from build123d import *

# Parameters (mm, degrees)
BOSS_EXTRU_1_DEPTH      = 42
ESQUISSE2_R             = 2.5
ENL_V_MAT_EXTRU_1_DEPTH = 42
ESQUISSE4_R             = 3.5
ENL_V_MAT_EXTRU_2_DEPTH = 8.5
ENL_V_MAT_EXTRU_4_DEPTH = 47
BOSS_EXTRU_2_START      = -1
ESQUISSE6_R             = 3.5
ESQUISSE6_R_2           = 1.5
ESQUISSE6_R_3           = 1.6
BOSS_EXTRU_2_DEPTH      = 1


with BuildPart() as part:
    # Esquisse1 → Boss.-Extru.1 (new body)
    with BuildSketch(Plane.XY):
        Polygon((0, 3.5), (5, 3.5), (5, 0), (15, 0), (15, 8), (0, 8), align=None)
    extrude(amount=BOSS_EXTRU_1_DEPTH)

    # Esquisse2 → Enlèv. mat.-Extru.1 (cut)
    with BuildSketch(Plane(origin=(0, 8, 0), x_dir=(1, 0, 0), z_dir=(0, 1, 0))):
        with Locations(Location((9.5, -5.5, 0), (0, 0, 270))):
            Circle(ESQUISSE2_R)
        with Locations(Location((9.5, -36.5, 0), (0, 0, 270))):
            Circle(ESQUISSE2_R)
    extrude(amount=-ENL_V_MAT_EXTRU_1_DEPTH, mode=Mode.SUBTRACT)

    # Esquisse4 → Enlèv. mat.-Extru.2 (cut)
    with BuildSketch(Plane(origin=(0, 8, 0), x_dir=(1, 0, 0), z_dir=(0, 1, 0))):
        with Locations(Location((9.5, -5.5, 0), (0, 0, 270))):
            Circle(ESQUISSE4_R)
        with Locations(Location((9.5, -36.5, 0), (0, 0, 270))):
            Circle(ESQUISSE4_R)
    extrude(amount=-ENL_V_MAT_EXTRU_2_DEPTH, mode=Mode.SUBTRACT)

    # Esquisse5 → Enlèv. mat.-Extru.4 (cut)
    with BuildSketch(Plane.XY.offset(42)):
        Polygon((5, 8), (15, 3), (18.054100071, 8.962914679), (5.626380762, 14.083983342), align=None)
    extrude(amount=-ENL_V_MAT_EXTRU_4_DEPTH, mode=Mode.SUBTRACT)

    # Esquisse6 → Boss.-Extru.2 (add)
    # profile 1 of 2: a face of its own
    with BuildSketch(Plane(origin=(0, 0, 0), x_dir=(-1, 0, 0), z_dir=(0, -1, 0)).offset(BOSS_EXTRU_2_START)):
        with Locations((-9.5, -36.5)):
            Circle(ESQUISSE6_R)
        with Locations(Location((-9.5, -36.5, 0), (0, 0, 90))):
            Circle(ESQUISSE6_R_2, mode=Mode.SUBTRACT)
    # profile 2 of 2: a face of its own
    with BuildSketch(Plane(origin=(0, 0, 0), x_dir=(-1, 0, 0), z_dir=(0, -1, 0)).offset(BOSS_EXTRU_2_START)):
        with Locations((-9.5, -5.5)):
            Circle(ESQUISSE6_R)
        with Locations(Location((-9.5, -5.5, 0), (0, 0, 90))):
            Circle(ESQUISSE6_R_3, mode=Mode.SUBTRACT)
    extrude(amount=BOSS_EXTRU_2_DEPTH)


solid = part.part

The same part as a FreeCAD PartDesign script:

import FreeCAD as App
import Part
import Sketcher

doc = App.newDocument("Part")
body = doc.addObject("PartDesign::Body", "Body")

sketch1 = body.newObject("Sketcher::SketchObject", "Sketch")
sketch1.AttachmentSupport = (doc.getObject("XY_Plane"), [""])
sketch1.MapMode = "FlatFace"
sketch1.addGeometry([
    Part.LineSegment(App.Vector(0, 3.5, 0), App.Vector(5, 3.5, 0)),
    Part.LineSegment(App.Vector(5, 3.5, 0), App.Vector(5, 0, 0)),
    Part.LineSegment(App.Vector(5, 0, 0), App.Vector(15, 0, 0)),
    Part.LineSegment(App.Vector(15, 0, 0), App.Vector(15, 8, 0)),
    Part.LineSegment(App.Vector(15, 8, 0), App.Vector(0, 8, 0)),
    Part.LineSegment(App.Vector(0, 8, 0), App.Vector(0, 3.5, 0)),
], False)
sketch1.addConstraint([
    Sketcher.Constraint("Coincident", 0, 2, 1, 1),
    Sketcher.Constraint("Coincident", 1, 2, 2, 1),
    Sketcher.Constraint("Coincident", 2, 2, 3, 1),
    Sketcher.Constraint("Coincident", 3, 2, 4, 1),
    Sketcher.Constraint("Coincident", 4, 2, 5, 1),
    Sketcher.Constraint("Coincident", 5, 2, 0, 1),
    Sketcher.Constraint("Horizontal", 0),
    Sketcher.Constraint("Vertical", 1),
    Sketcher.Constraint("Horizontal", 2),
    Sketcher.Constraint("Vertical", 3),
    Sketcher.Constraint("Horizontal", 4),
    Sketcher.Constraint("Vertical", 5),
    Sketcher.Constraint("PointOnObject", 1, 2, -1),
    Sketcher.Constraint("PointOnObject", 4, 2, -2),
    Sketcher.Constraint("DistanceX", 0, 1, 0, 2, 5.0),
    Sketcher.Constraint("DistanceX", 2, 1, 2, 2, 10.0),
    Sketcher.Constraint("DistanceY", 3, 1, 3, 2, 8.0),
    Sketcher.Constraint("DistanceY", 1, 2, 1, 1, 3.5),
])
pad1 = body.newObject("PartDesign::Pad", "Pad")
pad1.Profile = sketch1
pad1.Length = 42

sketch2 = body.newObject("Sketcher::SketchObject", "Sketch001")
sketch2.AttachmentSupport = (doc.getObject("XZ_Plane"), [""])
sketch2.MapMode = "FlatFace"
sketch2.AttachmentOffset = App.Placement(App.Vector(0, 0, -8), App.Rotation())
sketch2.addGeometry([
    Part.Circle(App.Vector(9.5, 5.5, 0), App.Vector(0, 0, 1), 2.5),
    Part.Circle(App.Vector(9.5, 36.5, 0), App.Vector(0, 0, 1), 2.5),
], False)
sketch2.addConstraint([
    Sketcher.Constraint("Equal", 0, 1),
    Sketcher.Constraint("Vertical", 0, 3, 1, 3),
    Sketcher.Constraint("Diameter", 0, 5.0),
    Sketcher.Constraint("DistanceY", 0, 3, 1, 3, 31.0),
    Sketcher.Constraint("DistanceX", -1, 1, 0, 3, 9.5),
    Sketcher.Constraint("DistanceY", -1, 1, 0, 3, 5.5),
])
pocket1 = body.newObject("PartDesign::Pocket", "Pocket")
pocket1.Profile = sketch2
pocket1.Length = 42
pocket1.Reversed = True

sketch3 = body.newObject("Sketcher::SketchObject", "Sketch002")
sketch3.AttachmentSupport = (doc.getObject("XZ_Plane"), [""])
sketch3.MapMode = "FlatFace"
sketch3.AttachmentOffset = App.Placement(App.Vector(0, 0, -8), App.Rotation())
sketch3.addGeometry([
    Part.Circle(App.Vector(9.5, 5.5, 0), App.Vector(0, 0, 1), 3.5),
    Part.Circle(App.Vector(9.5, 36.5, 0), App.Vector(0, 0, 1), 3.5),
], False)
sketch3.addConstraint([
    Sketcher.Constraint("Equal", 0, 1),
    Sketcher.Constraint("Vertical", 0, 3, 1, 3),
    Sketcher.Constraint("Diameter", 0, 7.0),
    Sketcher.Constraint("DistanceY", 0, 3, 1, 3, 31.0),
    Sketcher.Constraint("DistanceX", -1, 1, 0, 3, 9.5),
    Sketcher.Constraint("DistanceY", -1, 1, 0, 3, 5.5),
])
pocket2 = body.newObject("PartDesign::Pocket", "Pocket001")
pocket2.Profile = sketch3
pocket2.Length = 8.5
pocket2.Reversed = True

sketch4 = body.newObject("Sketcher::SketchObject", "Sketch003")
sketch4.AttachmentSupport = (doc.getObject("XY_Plane"), [""])
sketch4.MapMode = "FlatFace"
sketch4.AttachmentOffset = App.Placement(App.Vector(0, 0, 42), App.Rotation())
sketch4.addGeometry([
    Part.LineSegment(App.Vector(5, 8, 0), App.Vector(15, 3, 0)),
    Part.LineSegment(App.Vector(15, 3, 0), App.Vector(18, 9, 0)),
    Part.LineSegment(App.Vector(18, 9, 0), App.Vector(6, 14, 0)),
    Part.LineSegment(App.Vector(6, 14, 0), App.Vector(5, 8, 0)),
], False)
sketch4.addConstraint([
    Sketcher.Constraint("Coincident", 0, 2, 1, 1),
    Sketcher.Constraint("Coincident", 1, 2, 2, 1),
    Sketcher.Constraint("Coincident", 2, 2, 3, 1),
    Sketcher.Constraint("Coincident", 3, 2, 0, 1),
    Sketcher.Constraint("DistanceX", -1, 1, 0, 2, 15.0),
    Sketcher.Constraint("DistanceY", -1, 1, 0, 2, 3.0),
    Sketcher.Constraint("DistanceX", -1, 1, 3, 2, 5.0),
    Sketcher.Constraint("DistanceY", -1, 1, 3, 2, 8.0),
    Sketcher.Constraint("DistanceX", -1, 1, 1, 2, 18.0541),
    Sketcher.Constraint("DistanceX", -1, 1, 2, 2, 5.626381),
    Sketcher.Constraint("DistanceY", 1, 2, 2, 2, 5.121069),
    Sketcher.Constraint("Distance", 1, 6.699543),
])
pocket3 = body.newObject("PartDesign::Pocket", "Pocket002")
pocket3.Profile = sketch4
pocket3.Length = 47

sketch5 = body.newObject("Sketcher::SketchObject", "Sketch004")
sketch5.AttachmentSupport = (doc.getObject("XZ_Plane"), [""])
sketch5.MapMode = "FlatFace"
sketch5.AttachmentOffset = App.Placement(App.Vector(0, 0, -1), App.Rotation())
sketch5.addGeometry([
    Part.Circle(App.Vector(9.5, 36.5, 0), App.Vector(0, 0, 1), 3.5),
    Part.Circle(App.Vector(9.5, 36.5, 0), App.Vector(0, 0, 1), 1.5),
    Part.Circle(App.Vector(9.5, 5.5, 0), App.Vector(0, 0, 1), 3.5),
    Part.Circle(App.Vector(9.5, 5.5, 0), App.Vector(0, 0, 1), 1.6),
], False)
sketch5.addConstraint([
    Sketcher.Constraint("Coincident", 1, 3, 0, 3),
    Sketcher.Constraint("Coincident", 3, 3, 2, 3),
    Sketcher.Constraint("Equal", 0, 2),
    Sketcher.Constraint("Vertical", 1, 3, 2, 3),
    Sketcher.Constraint("Diameter", 0, 7.0),
    Sketcher.Constraint("Diameter", 1, 3.0),
    Sketcher.Constraint("Diameter", 3, 3.2),
    Sketcher.Constraint("DistanceY", 2, 3, 0, 3, 31.0),
    Sketcher.Constraint("DistanceX", -1, 1, 0, 3, 9.5),
    Sketcher.Constraint("DistanceY", -1, 1, 0, 3, 36.5),
])
pad2 = body.newObject("PartDesign::Pad", "Pad001")
pad2.Profile = sketch5
pad2.Length = 1

doc.recompute()
